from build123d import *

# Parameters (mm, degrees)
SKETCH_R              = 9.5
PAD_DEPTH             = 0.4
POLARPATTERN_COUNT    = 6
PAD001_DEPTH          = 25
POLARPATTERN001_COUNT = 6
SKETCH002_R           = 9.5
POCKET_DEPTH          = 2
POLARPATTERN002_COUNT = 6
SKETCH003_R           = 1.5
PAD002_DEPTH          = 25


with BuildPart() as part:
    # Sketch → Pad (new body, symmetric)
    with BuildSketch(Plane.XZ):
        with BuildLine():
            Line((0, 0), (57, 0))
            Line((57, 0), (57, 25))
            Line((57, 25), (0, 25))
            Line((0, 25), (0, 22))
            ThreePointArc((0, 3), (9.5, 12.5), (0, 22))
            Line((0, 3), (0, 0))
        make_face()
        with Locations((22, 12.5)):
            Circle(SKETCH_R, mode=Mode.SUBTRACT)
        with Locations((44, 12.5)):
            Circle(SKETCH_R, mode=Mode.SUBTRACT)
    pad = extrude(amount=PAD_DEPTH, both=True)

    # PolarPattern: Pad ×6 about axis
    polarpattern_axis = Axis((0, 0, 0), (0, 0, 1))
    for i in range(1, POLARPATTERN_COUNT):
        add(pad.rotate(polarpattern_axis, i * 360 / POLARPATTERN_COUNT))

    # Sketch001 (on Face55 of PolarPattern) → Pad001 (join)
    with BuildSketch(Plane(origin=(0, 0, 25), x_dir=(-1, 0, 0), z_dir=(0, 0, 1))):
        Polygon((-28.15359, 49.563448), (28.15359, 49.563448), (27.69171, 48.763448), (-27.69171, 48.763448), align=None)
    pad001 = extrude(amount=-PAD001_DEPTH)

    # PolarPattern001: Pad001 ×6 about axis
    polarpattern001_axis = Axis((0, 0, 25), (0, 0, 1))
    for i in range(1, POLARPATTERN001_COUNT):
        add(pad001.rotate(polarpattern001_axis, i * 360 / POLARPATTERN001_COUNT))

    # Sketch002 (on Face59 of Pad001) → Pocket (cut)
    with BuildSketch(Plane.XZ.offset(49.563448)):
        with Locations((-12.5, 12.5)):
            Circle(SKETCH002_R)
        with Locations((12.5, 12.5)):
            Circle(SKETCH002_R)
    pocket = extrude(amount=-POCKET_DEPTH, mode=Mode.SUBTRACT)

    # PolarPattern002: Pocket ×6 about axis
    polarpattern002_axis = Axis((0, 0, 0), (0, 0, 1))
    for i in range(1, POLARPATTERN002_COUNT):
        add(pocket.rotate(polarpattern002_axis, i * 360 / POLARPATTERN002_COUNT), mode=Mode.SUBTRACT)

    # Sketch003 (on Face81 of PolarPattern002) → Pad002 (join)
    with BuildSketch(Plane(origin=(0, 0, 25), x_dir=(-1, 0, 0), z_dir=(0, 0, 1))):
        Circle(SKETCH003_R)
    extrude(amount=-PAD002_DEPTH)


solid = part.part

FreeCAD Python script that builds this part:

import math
import FreeCAD as App
import Part
import Sketcher
from FreeCAD import Vector
Q = App.Units.Quantity


def add_polygon(sketch, points):
    """Adds a closed chain of lines whose ends are joined by coincident constraints."""
    first, n = sketch.GeometryCount, len(points)
    for a, b in zip(points, points[1:] + points[:1]):
        sketch.addGeometry(Part.LineSegment(App.Vector(*a, 0), App.Vector(*b, 0)), False)
    for i in range(n):
        sketch.addConstraint(Sketcher.Constraint("Coincident", first + i, 2, first + (i + 1) % n, 1))

doc = App.newDocument("Part")
body = doc.addObject("PartDesign::Body", "Body")

# Sketch on XZ plane
sketch1 = body.newObject("Sketcher::SketchObject", "Sketch")
sketch1.AttachmentSupport = (doc.getObject("XZ_Plane"), [""])
sketch1.MapMode = "FlatFace"
sketch1.addGeometry([
    Part.LineSegment(Vector(0, 0, 0), Vector(57, 0, 0)),  # 0
    Part.LineSegment(Vector(57, 0, 0), Vector(57, 25, 0)),  # 1
    Part.LineSegment(Vector(57, 25, 0), Vector(0, 25, 0)),  # 2
    Part.LineSegment(Vector(0, 25, 0), Vector(0, 22, 0)),  # 3
    Part.ArcOfCircle(Part.Circle(Vector(0, 12.5, 0), Vector(0, 0, 1), 9.5), math.radians(-90), math.radians(90)),  # 4
    Part.LineSegment(Vector(0, 3, 0), Vector(0, 0, 0)),  # 5
    Part.Circle(Vector(22, 12.5, 0), Vector(0, 0, 1), 9.5),  # 6
    Part.Circle(Vector(44, 12.5, 0), Vector(0, 0, 1), 9.5),  # 7
], False)
sketch1.addConstraint([
    Sketcher.Constraint("Coincident", 0, 2, 1, 1),
    Sketcher.Constraint("Coincident", 1, 2, 2, 1),
    Sketcher.Constraint("Coincident", 2, 2, 3, 1),
    Sketcher.Constraint("Coincident", 3, 2, 4, 2),
    Sketcher.Constraint("Coincident", 4, 1, 5, 1),
    Sketcher.Constraint("Coincident", 5, 2, 0, 1),
    Sketcher.Constraint("Horizontal", 0),
    Sketcher.Constraint("Vertical", 1),
    Sketcher.Constraint("Horizontal", 2),
    Sketcher.Constraint("Vertical", 3),
    Sketcher.Constraint("Vertical", 5),
    Sketcher.Constraint("Coincident", 5, 2, -1, 1),
    Sketcher.Constraint("Equal", 4, 6),
    Sketcher.Constraint("Equal", 6, 7),
    Sketcher.Constraint("PointOnObject", 4, 3, -2),
    Sketcher.Constraint("PointOnObject", 2, 2, -2),
    Sketcher.Constraint("Horizontal", 4, 3, 6, 3),
    Sketcher.Constraint("Horizontal", 6, 3, 7, 3),
    Sketcher.Constraint("Equal", 3, 5),
    Sketcher.Constraint("Diameter", 6, Q("19 mm")),
    Sketcher.Constraint("DistanceX", 0, 1, 0, 2, Q("57 mm")),
    Sketcher.Constraint("DistanceY", 1, 1, 1, 2, Q("25 mm")),
    Sketcher.Constraint("DistanceX", -1, 1, 6, 3, Q("22 mm")),
    Sketcher.Constraint("DistanceX", -1, 1, 7, 3, Q("44 mm")),
])
pad1 = body.newObject("PartDesign::Pad", "Pad")
pad1.Profile = sketch1
pad1.Length = 0.8
pad1.Midplane = True
doc.recompute()

polarpattern = body.newObject("PartDesign::PolarPattern", "PolarPattern")
polarpattern.Originals = [pad1]
polarpattern.Axis = (doc.getObject("Z_Axis"), [""])
polarpattern.Angle = 360
polarpattern.Occurrences = 6
body.Tip = polarpattern

# Sketch on XY plane
sketch2 = body.newObject("Sketcher::SketchObject", "Sketch001")
sketch2.AttachmentSupport = (doc.getObject("XY_Plane"), [""])
sketch2.MapMode = "FlatFace"
sketch2.AttachmentOffset = App.Placement(Vector(0, 0, 25), App.Rotation())
add_polygon(sketch2, [(-28.15359, -49.563448), (28.15359, -49.563448), (27.69171, -48.763448), (-27.69171, -48.763448)])  # lines 0-3
sketch2.addConstraint([
    Sketcher.Constraint("Horizontal", 0),
    Sketcher.Constraint("Horizontal", 2),
    Sketcher.Constraint("Equal", 1, 3),
    Sketcher.Constraint("Angle", 1, Q("119.999988 deg")),
    Sketcher.Constraint("DistanceY", 0, 2, 1, 2, Q("0.8 mm")),
    Sketcher.Constraint("DistanceX", 0, 1, 0, 2, Q("56.30718 mm")),
    Sketcher.Constraint("DistanceX", -1, 1, 0, 2, Q("28.15359 mm")),
    Sketcher.Constraint("DistanceY", 0, 2, -1, 1, Q("49.563448 mm")),
])
pad2 = body.newObject("PartDesign::Pad", "Pad001")
pad2.Profile = sketch2
pad2.Length = 25
pad2.Reversed = True
doc.recompute()

polarpattern2 = body.newObject("PartDesign::PolarPattern", "PolarPattern001")
polarpattern2.Originals = [pad2]
polarpattern2.Axis = (doc.getObject("Z_Axis"), [""])
polarpattern2.Angle = 360
polarpattern2.Occurrences = 6
body.Tip = polarpattern2

# Sketch on XZ plane
sketch3 = body.newObject("Sketcher::SketchObject", "Sketch002")
sketch3.AttachmentSupport = (doc.getObject("XZ_Plane"), [""])
sketch3.MapMode = "FlatFace"
sketch3.AttachmentOffset = App.Placement(Vector(0, 0, 49.563448), App.Rotation())
sketch3.addGeometry([
    Part.Circle(Vector(-12.5, 12.5, 0), Vector(0, 0, 1), 9.5),
    Part.Circle(Vector(12.5, 12.5, 0), Vector(0, 0, 1), 9.5),
], False)
sketch3.addConstraint([
    Sketcher.Constraint("Equal", 0, 1),
    Sketcher.Constraint("Symmetric", 0, 3, 1, 3, -2),
    Sketcher.Constraint("Diameter", 0, Q("19 mm")),
    Sketcher.Constraint("DistanceX", 0, 3, 1, 3, Q("25 mm")),
    Sketcher.Constraint("DistanceY", -1, 1, 0, 3, Q("12.5 mm")),
])
pocket1 = body.newObject("PartDesign::Pocket", "Pocket")
pocket1.Profile = sketch3
pocket1.Length = 2
doc.recompute()

polarpattern3 = body.newObject("PartDesign::PolarPattern", "PolarPattern002")
polarpattern3.Originals = [pocket1]
polarpattern3.Axis = (doc.getObject("Z_Axis"), [""])
polarpattern3.Angle = 360
polarpattern3.Occurrences = 6
body.Tip = polarpattern3

# Sketch on XY plane
sketch4 = body.newObject("Sketcher::SketchObject", "Sketch003")
sketch4.AttachmentSupport = (doc.getObject("XY_Plane"), [""])
sketch4.MapMode = "FlatFace"
sketch4.AttachmentOffset = App.Placement(Vector(0, 0, 25), App.Rotation())
sketch4.addGeometry(Part.Circle(Vector(0, 0, 0), Vector(0, 0, 1), 1.5), False)
sketch4.addConstraint([
    Sketcher.Constraint("Coincident", 0, 3, -1, 1),
    Sketcher.Constraint("Diameter", 0, Q("3 mm")),
])
pad3 = body.newObject("PartDesign::Pad", "Pad002")
pad3.Profile = sketch4
pad3.Length = 25
pad3.Reversed = True

doc.recompute()
